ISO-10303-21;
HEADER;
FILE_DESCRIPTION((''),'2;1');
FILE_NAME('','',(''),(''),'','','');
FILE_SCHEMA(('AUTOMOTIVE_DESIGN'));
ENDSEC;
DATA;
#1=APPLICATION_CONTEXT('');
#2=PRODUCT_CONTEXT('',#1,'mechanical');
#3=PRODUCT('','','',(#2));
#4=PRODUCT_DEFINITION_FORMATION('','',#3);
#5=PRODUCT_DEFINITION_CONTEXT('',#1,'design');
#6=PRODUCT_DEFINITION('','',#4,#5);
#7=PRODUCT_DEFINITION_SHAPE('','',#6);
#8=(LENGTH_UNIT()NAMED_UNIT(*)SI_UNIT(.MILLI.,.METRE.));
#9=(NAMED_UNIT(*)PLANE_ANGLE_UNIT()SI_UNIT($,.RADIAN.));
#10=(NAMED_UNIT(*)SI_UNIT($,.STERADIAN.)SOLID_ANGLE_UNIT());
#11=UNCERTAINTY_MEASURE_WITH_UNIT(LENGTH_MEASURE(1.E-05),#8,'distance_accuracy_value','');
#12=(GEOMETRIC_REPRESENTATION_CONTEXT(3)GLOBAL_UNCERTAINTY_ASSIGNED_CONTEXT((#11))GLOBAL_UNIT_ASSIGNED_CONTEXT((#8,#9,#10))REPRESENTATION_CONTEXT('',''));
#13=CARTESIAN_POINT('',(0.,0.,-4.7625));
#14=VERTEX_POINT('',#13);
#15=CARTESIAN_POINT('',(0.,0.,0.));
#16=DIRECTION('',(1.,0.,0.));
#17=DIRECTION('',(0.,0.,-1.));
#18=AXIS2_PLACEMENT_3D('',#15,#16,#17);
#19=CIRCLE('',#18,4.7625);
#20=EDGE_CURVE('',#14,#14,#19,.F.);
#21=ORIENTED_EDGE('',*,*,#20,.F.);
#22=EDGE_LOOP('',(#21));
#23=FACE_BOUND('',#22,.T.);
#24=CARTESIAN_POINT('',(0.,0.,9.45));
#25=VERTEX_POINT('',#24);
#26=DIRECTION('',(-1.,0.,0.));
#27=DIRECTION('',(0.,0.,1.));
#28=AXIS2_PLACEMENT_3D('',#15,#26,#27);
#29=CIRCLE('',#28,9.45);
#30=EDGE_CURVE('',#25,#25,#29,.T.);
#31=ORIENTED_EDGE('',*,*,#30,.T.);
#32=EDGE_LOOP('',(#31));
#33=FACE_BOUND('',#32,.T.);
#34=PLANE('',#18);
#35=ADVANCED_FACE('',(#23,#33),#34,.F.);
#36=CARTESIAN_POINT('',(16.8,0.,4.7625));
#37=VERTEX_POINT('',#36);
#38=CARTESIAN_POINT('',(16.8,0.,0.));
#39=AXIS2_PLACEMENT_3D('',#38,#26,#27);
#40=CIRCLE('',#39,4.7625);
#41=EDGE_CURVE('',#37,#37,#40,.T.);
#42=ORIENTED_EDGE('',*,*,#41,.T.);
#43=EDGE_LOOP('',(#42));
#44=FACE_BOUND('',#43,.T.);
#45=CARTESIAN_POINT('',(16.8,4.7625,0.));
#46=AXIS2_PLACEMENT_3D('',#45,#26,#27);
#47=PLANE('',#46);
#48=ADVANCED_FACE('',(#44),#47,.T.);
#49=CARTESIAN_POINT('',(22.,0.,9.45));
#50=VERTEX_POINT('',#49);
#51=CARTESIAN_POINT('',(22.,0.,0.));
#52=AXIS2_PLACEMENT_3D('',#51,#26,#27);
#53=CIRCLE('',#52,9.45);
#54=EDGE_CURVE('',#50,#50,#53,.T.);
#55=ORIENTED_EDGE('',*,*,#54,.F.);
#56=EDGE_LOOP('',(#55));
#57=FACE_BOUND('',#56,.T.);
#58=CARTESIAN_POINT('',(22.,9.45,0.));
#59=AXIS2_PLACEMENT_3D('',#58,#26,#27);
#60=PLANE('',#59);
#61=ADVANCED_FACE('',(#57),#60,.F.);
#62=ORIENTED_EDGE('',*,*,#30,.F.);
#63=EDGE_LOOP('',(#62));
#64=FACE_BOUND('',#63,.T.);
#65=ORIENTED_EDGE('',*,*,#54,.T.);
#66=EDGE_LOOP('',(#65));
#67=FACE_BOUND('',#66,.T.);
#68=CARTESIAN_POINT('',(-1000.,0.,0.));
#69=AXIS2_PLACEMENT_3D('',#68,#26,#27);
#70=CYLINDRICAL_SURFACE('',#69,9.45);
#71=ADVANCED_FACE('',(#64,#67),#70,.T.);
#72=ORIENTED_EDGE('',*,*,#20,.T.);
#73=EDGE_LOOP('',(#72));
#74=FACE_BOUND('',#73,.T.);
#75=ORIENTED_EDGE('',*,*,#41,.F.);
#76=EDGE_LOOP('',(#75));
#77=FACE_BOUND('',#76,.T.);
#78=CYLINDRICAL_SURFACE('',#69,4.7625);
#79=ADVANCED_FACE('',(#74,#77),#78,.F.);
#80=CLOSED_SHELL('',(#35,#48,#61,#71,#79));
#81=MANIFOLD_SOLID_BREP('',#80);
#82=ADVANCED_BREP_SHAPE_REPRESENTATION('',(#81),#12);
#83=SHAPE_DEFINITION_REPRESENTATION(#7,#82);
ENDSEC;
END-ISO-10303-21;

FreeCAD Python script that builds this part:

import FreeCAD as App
import Part
import Sketcher
Q = App.Units.Quantity

doc = App.newDocument("Part")
body = doc.addObject("PartDesign::Body", "Body")

# Sketch on XY plane
sketch1 = doc.addObject("Sketcher::SketchObject", "Sketch")
body.addObject(sketch1)
sketch1.AttachmentSupport = (doc.XY_Plane, [""])
sketch1.MapMode = "FlatFace"
sketch1.addGeometry(Part.LineSegment(App.Vector(0, 9.45, 0), App.Vector(0, 0, 0)), False)
sketch1.addGeometry(Part.LineSegment(App.Vector(0, 0, 0), App.Vector(22, 0, 0)), False)
sketch1.addGeometry(Part.LineSegment(App.Vector(22, 0, 0), App.Vector(22, 9.45, 0)), False)
sketch1.addGeometry(Part.LineSegment(App.Vector(22, 9.45, 0), App.Vector(0, 9.45, 0)), False)
sketch1.addConstraint(Sketcher.Constraint("Coincident", 0, 2, 1, 1))
sketch1.addConstraint(Sketcher.Constraint("Coincident", 1, 2, 2, 1))
sketch1.addConstraint(Sketcher.Constraint("Coincident", 2, 2, 3, 1))
sketch1.addConstraint(Sketcher.Constraint("Coincident", 3, 2, 0, 1))
sketch1.addConstraint(Sketcher.Constraint("Vertical", 0))
sketch1.addConstraint(Sketcher.Constraint("Horizontal", 1))
sketch1.addConstraint(Sketcher.Constraint("Vertical", 2))
sketch1.addConstraint(Sketcher.Constraint("Horizontal", 3))
sketch1.addConstraint(Sketcher.Constraint("Coincident", 0, 2, -1, 1))
sketch1.addConstraint(Sketcher.Constraint("DistanceX", 1, 1, 1, 2, Q("22 mm")))
sketch1.addConstraint(Sketcher.Constraint("DistanceY", 0, 2, 0, 1, Q("9.45 mm")))
revolution = doc.addObject("PartDesign::Revolution", "Revolution")
body.addObject(revolution)
revolution.Profile = sketch1
revolution.ReferenceAxis = (sketch1, ["H_Axis"])
revolution.Angle = 360

# Sketch on XY plane
sketch2 = doc.addObject("Sketcher::SketchObject", "Sketch001")
body.addObject(sketch2)
sketch2.AttachmentSupport = (doc.XY_Plane, [""])
sketch2.MapMode = "FlatFace"
sketch2.addGeometry(Part.LineSegment(App.Vector(-1, 4.7625, 0), App.Vector(-1, 0, 0)), False)
sketch2.addGeometry(Part.LineSegment(App.Vector(-1, 0, 0), App.Vector(16.8, 0, 0)), False)
sketch2.addGeometry(Part.LineSegment(App.Vector(16.8, 0, 0), App.Vector(16.8, 4.7625, 0)), False)
sketch2.addGeometry(Part.LineSegment(App.Vector(16.8, 4.7625, 0), App.Vector(-1, 4.7625, 0)), False)
sketch2.addConstraint(Sketcher.Constraint("Coincident", 0, 2, 1, 1))
sketch2.addConstraint(Sketcher.Constraint("Coincident", 1, 2, 2, 1))
sketch2.addConstraint(Sketcher.Constraint("Coincident", 2, 2, 3, 1))
sketch2.addConstraint(Sketcher.Constraint("Coincident", 3, 2, 0, 1))
sketch2.addConstraint(Sketcher.Constraint("Vertical", 0))
sketch2.addConstraint(Sketcher.Constraint("Horizontal", 1))
sketch2.addConstraint(Sketcher.Constraint("Vertical", 2))
sketch2.addConstraint(Sketcher.Constraint("Horizontal", 3))
sketch2.addConstraint(Sketcher.Constraint("PointOnObject", 0, 2, -1))
sketch2.addConstraint(Sketcher.Constraint("DistanceX", 1, 1, 1, 2, Q("17.8 mm")))
sketch2.addConstraint(Sketcher.Constraint("DistanceX", 0, 2, -1, 1, Q("1 mm")))
sketch2.addConstraint(Sketcher.Constraint("DistanceY", 0, 2, 0, 1, Q("4.7625 mm")))
groove = doc.addObject("PartDesign::Groove", "Groove")
body.addObject(groove)
groove.Profile = sketch2
groove.ReferenceAxis = (sketch2, ["H_Axis"])
groove.Angle = 360

doc.recompute()
